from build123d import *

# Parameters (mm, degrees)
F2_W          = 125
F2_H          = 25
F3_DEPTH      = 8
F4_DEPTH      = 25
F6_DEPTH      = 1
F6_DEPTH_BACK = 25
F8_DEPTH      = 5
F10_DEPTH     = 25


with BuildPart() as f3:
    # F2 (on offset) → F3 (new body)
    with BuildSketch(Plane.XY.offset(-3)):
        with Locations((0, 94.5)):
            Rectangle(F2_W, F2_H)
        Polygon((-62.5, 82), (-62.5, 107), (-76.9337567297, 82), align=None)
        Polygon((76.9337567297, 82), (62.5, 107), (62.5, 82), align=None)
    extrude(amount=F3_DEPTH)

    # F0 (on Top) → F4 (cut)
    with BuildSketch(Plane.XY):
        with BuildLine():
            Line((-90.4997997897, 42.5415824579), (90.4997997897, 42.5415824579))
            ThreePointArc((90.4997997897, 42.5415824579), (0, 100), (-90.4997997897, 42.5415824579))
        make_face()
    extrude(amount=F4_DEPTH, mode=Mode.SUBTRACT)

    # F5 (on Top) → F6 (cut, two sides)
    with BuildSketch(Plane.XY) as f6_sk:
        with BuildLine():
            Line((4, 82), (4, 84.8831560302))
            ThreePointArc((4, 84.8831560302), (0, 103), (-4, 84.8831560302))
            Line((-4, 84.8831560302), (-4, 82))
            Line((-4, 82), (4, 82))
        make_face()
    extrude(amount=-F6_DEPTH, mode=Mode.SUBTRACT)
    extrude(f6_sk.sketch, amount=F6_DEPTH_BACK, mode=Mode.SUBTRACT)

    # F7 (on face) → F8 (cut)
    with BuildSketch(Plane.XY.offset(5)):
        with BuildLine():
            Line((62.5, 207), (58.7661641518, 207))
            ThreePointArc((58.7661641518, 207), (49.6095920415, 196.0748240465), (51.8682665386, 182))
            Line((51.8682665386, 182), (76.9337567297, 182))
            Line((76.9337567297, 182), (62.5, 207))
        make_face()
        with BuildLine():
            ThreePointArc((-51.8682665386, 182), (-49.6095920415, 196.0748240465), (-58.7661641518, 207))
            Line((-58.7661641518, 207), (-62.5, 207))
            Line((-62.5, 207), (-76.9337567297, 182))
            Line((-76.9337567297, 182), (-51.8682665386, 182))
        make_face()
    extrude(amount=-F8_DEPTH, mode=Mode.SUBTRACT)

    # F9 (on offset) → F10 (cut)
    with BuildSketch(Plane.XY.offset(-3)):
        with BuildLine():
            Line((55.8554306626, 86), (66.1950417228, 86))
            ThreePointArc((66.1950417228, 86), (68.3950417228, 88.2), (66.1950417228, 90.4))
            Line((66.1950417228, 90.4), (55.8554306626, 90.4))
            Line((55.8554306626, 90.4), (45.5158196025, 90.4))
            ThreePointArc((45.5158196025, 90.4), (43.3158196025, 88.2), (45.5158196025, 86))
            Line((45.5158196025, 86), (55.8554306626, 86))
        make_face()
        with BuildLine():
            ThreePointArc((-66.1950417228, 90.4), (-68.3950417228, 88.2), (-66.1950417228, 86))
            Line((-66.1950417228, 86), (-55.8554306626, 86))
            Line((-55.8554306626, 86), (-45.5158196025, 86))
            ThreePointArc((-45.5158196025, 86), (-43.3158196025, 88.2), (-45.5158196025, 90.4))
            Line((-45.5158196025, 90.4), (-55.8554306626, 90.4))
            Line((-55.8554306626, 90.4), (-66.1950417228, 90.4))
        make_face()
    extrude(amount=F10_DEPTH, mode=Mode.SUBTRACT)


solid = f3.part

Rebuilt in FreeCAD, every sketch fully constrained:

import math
import FreeCAD as App
import Part
import Sketcher

V = App.Vector
Q = App.Units.Quantity

doc = App.newDocument("Part")
params = doc.addObject("Spreadsheet::Sheet", "Params")
for row, (alias, value) in enumerate([
    ("sketch1_width", "125 mm"),
    ("pad1_length", "8 mm"),
    ("sketch2_radius", "100 mm"),
    ("pocket1_length", "25 mm"),
    ("sketch3_radius", "9.5 mm"),
    ("sketch3_width", "8 mm"),
    ("pocket2_length", "1 mm"),
    ("pocket2_length2", "25 mm"),
    ("pocket3_length", "5 mm"),
    ("sketch5_radius", "2.2 mm"),
    ("pocket4_length", "25 mm"),
], start=1):
    params.set(f"A{row}", alias)
    params.set(f"B{row}", "=" + value)
    params.setAlias(f"B{row}", alias)

body = doc.addObject("PartDesign::Body", "Body")

# Sketch on XY plane
sketch1 = body.newObject("Sketcher::SketchObject", "Sketch")
sketch1.AttachmentSupport = (doc.getObject("XY_Plane"), [""])
sketch1.MapMode = "FlatFace"
sketch1.AttachmentOffset = App.Placement(V(0, 0, -3), App.Rotation())
sketch1.addGeometry([
    Part.LineSegment(V(62, 107, 0), V(-62, 107, 0)),
    Part.LineSegment(V(-62, 107, 0), V(-77, 82, 0)),
    Part.LineSegment(V(-77, 82, 0), V(77, 82, 0)),
    Part.LineSegment(V(77, 82, 0), V(62, 107, 0)),
], False)
sketch1.addConstraint([
    Sketcher.Constraint("Coincident", 0, 2, 1, 1),
    Sketcher.Constraint("Coincident", 1, 2, 2, 1),
    Sketcher.Constraint("Coincident", 2, 2, 3, 1),
    Sketcher.Constraint("Coincident", 3, 2, 0, 1),
    Sketcher.Constraint("Horizontal", 0),
    Sketcher.Constraint("Horizontal", 2),
    Sketcher.Constraint("Equal", 1, 3),
    Sketcher.Constraint("DistanceX", 0, 2, 0, 1, Q("125 mm")),
    Sketcher.Constraint("Angle", 1, Q("-120 deg")),
    Sketcher.Constraint("DistanceY", -1, 1, 0, 2, Q("107 mm")),
    Sketcher.Constraint("DistanceY", -1, 1, 1, 2, Q("82 mm")),
    Sketcher.Constraint("DistanceX", 0, 2, -1, 1, Q("62.5 mm")),
])
sketch1.setExpression("Constraints[7]", "Params.sketch1_width")
pad1 = body.newObject("PartDesign::Pad", "Pad")
pad1.Profile = sketch1
pad1.setExpression("Length", "Params.pad1_length")

# Sketch on XY plane
sketch2 = body.newObject("Sketcher::SketchObject", "Sketch001")
sketch2.AttachmentSupport = (doc.getObject("XY_Plane"), [""])
sketch2.MapMode = "FlatFace"
sketch2.addGeometry([
    Part.LineSegment(V(-90, 43, 0), V(90, 43, 0)),
    Part.ArcOfCircle(Part.Circle(V(0, 0, 0), V(0, 0, 1), 100), math.radians(25), math.radians(155)),
], False)
sketch2.addConstraint([
    Sketcher.Constraint("Coincident", 0, 1, 1, 2),
    Sketcher.Constraint("Coincident", 1, 1, 0, 2),
    Sketcher.Constraint("Horizontal", 0),
    Sketcher.Constraint("Coincident", 1, 3, -1, 1),
    Sketcher.Constraint("Radius", 1, Q("100 mm")),
    Sketcher.Constraint("DistanceX", 0, 1, 0, 2, Q("180.9996 mm")),
])
sketch2.setExpression("Constraints[4]", "Params.sketch2_radius")
pocket1 = body.newObject("PartDesign::Pocket", "Pocket")
pocket1.Profile = sketch2
pocket1.setExpression("Length", "Params.pocket1_length")
pocket1.Reversed = True

# Sketch on XY plane
sketch3 = body.newObject("Sketcher::SketchObject", "Sketch002")
sketch3.AttachmentSupport = (doc.getObject("XY_Plane"), [""])
sketch3.MapMode = "FlatFace"
sketch3.addGeometry([
    Part.LineSegment(V(4, 82, 0), V(4, 84.9, 0)),
    Part.ArcOfCircle(Part.Circle(V(0, 93.5, 0), V(0, 0, 1), 9.5), math.radians(-65), math.radians(245)),
    Part.LineSegment(V(-4, 84.9, 0), V(-4, 82, 0)),
    Part.LineSegment(V(-4, 82, 0), V(4, 82, 0)),
], False)
sketch3.addConstraint([
    Sketcher.Constraint("Coincident", 0, 2, 1, 1),
    Sketcher.Constraint("Coincident", 1, 2, 2, 1),
    Sketcher.Constraint("Coincident", 2, 2, 3, 1),
    Sketcher.Constraint("Coincident", 3, 2, 0, 1),
    Sketcher.Constraint("Vertical", 0),
    Sketcher.Constraint("Vertical", 2),
    Sketcher.Constraint("Horizontal", 3),
    Sketcher.Constraint("Symmetric", 0, 2, 1, 2, -2),
    Sketcher.Constraint("Radius", 1, Q("9.5 mm")),
    Sketcher.Constraint("DistanceX", 3, 1, 3, 2, Q("8 mm")),
    Sketcher.Constraint("DistanceY", -1, 1, 2, 2, Q("82 mm")),
    Sketcher.Constraint("DistanceY", -1, 1, 1, 3, Q("93.5 mm")),
])
sketch3.setExpression("Constraints[8]", "Params.sketch3_radius")
sketch3.setExpression("Constraints[9]", "Params.sketch3_width")
pocket2 = body.newObject("PartDesign::Pocket", "Pocket001")
pocket2.Profile = sketch3
pocket2.Type = "TwoLengths"
pocket2.setExpression("Length", "Params.pocket2_length")
pocket2.setExpression("Length2", "Params.pocket2_length2")

# Sketch on XY plane
sketch4 = body.newObject("Sketcher::SketchObject", "Sketch003")
sketch4.AttachmentSupport = (doc.getObject("XY_Plane"), [""])
sketch4.MapMode = "FlatFace"
sketch4.AttachmentOffset = App.Placement(V(0, 0, 5), App.Rotation())
sketch4.addGeometry([
    Part.LineSegment(V(62.5, 207, 0), V(58.8, 207, 0)),  # 0
    Part.ArcOfCircle(Part.Circle(V(66.2, 191.5, 0), V(0, 0, 1), 17.2), math.radians(115), math.radians(214)),  # 1
    Part.LineSegment(V(51.9, 182, 0), V(76.9, 182, 0)),  # 2
    Part.LineSegment(V(76.9, 182, 0), V(62.5, 207, 0)),  # 3
    Part.ArcOfCircle(Part.Circle(V(-66.2, 191.5, 0), V(0, 0, 1), 17.2), math.radians(-34), math.radians(65)),  # 4
    Part.LineSegment(V(-58.8, 207, 0), V(-62.5, 207, 0)),  # 5
    Part.LineSegment(V(-62.5, 207, 0), V(-76.9, 182, 0)),  # 6
    Part.LineSegment(V(-76.9, 182, 0), V(-51.9, 182, 0)),  # 7
], False)
sketch4.addConstraint([
    Sketcher.Constraint("Coincident", 0, 2, 1, 1),
    Sketcher.Constraint("Coincident", 1, 2, 2, 1),
    Sketcher.Constraint("Coincident", 2, 2, 3, 1),
    Sketcher.Constraint("Coincident", 3, 2, 0, 1),
    Sketcher.Constraint("Coincident", 4, 2, 5, 1),
    Sketcher.Constraint("Coincident", 5, 2, 6, 1),
    Sketcher.Constraint("Coincident", 6, 2, 7, 1),
    Sketcher.Constraint("Coincident", 7, 2, 4, 1),
    Sketcher.Constraint("Horizontal", 0),
    Sketcher.Constraint("Horizontal", 2),
    Sketcher.Constraint("Horizontal", 5),
    Sketcher.Constraint("Horizontal", 7),
    Sketcher.Constraint("Equal", 1, 4),
    Sketcher.Constraint("Symmetric", 1, 3, 4, 3, -2),
    Sketcher.Constraint("Symmetric", 3, 2, 5, 2, -2),
    Sketcher.Constraint("Symmetric", 2, 2, 6, 2, -2),
    Sketcher.Constraint("Angle", 3, Q("120 deg")),
    Sketcher.Constraint("DistanceY", -1, 1, 0, 2, Q("207 mm")),
    Sketcher.Constraint("DistanceY", -1, 1, 1, 2, Q("182 mm")),
    Sketcher.Constraint("DistanceX", 5, 2, 3, 2, Q("125 mm")),
    Sketcher.Constraint("Radius", 1, Q("17.159752 mm")),
    Sketcher.Constraint("DistanceX", 2, 1, 2, 2, Q("25.06549 mm")),
    Sketcher.Constraint("DistanceX", 4, 3, 0, 2, Q("124.917402 mm")),
])
pocket3 = body.newObject("PartDesign::Pocket", "Pocket002")
pocket3.Profile = sketch4
pocket3.setExpression("Length", "Params.pocket3_length")

# Sketch on XY plane
sketch5 = body.newObject("Sketcher::SketchObject", "Sketch004")
sketch5.AttachmentSupport = (doc.getObject("XY_Plane"), [""])
sketch5.MapMode = "FlatFace"
sketch5.AttachmentOffset = App.Placement(V(0, 0, -3), App.Rotation())
sketch5.addGeometry([
    Part.ArcOfCircle(Part.Circle(V(66.2, 88.2, 0), V(0, 0, 1), 2.2), math.radians(-90), math.radians(90)),  # 0
    Part.LineSegment(V(66.2, 90.4, 0), V(45.5, 90.4, 0)),  # 1
    Part.ArcOfCircle(Part.Circle(V(45.5, 88.2, 0), V(0, 0, 1), 2.2), math.radians(90), math.radians(270)),  # 2
    Part.LineSegment(V(45.5, 86, 0), V(66.2, 86, 0)),  # 3
    Part.ArcOfCircle(Part.Circle(V(-66.2, 88.2, 0), V(0, 0, 1), 2.2), math.radians(90), math.radians(270)),  # 4
    Part.LineSegment(V(-66.2, 86, 0), V(-45.5, 86, 0)),  # 5
    Part.ArcOfCircle(Part.Circle(V(-45.5, 88.2, 0), V(0, 0, 1), 2.2), math.radians(-90), math.radians(90)),  # 6
    Part.LineSegment(V(-45.5, 90.4, 0), V(-66.2, 90.4, 0)),  # 7
], False)
sketch5.addConstraint([
    Sketcher.Constraint("Tangent", 0, 2, 1, 1),
    Sketcher.Constraint("Tangent", 1, 2, 2, 1),
    Sketcher.Constraint("Tangent", 2, 2, 3, 1),
    Sketcher.Constraint("Tangent", 3, 2, 0, 1),
    Sketcher.Constraint("Tangent", 4, 2, 5, 1),
    Sketcher.Constraint("Tangent", 5, 2, 6, 1),
    Sketcher.Constraint("Tangent", 6, 2, 7, 1),
    Sketcher.Constraint("Tangent", 7, 2, 4, 1),
    Sketcher.Constraint("Horizontal", 1),
    Sketcher.Constraint("Horizontal", 3),
    Sketcher.Constraint("Horizontal", 5),
    Sketcher.Constraint("Horizontal", 7),
    Sketcher.Constraint("Equal", 2, 4),
    Sketcher.Constraint("Symmetric", 0, 3, 4, 3, -2),
    Sketcher.Constraint("Equal", 3, 5),
    Sketcher.Constraint("Radius", 0, Q("2.2 mm")),
    Sketcher.Constraint("DistanceY", -1, 1, 2, 2, Q("86 mm")),
    Sketcher.Constraint("DistanceX", 1, 2, 1, 1, Q("20.679222 mm")),
    Sketcher.Constraint("DistanceX", -1, 1, 0, 3, Q("66.195042 mm")),
])
sketch5.setExpression("Constraints[15]", "Params.sketch5_radius")
pocket4 = body.newObject("PartDesign::Pocket", "Pocket003")
pocket4.Profile = sketch5
pocket4.setExpression("Length", "Params.pocket4_length")
pocket4.Reversed = True

doc.recompute()
